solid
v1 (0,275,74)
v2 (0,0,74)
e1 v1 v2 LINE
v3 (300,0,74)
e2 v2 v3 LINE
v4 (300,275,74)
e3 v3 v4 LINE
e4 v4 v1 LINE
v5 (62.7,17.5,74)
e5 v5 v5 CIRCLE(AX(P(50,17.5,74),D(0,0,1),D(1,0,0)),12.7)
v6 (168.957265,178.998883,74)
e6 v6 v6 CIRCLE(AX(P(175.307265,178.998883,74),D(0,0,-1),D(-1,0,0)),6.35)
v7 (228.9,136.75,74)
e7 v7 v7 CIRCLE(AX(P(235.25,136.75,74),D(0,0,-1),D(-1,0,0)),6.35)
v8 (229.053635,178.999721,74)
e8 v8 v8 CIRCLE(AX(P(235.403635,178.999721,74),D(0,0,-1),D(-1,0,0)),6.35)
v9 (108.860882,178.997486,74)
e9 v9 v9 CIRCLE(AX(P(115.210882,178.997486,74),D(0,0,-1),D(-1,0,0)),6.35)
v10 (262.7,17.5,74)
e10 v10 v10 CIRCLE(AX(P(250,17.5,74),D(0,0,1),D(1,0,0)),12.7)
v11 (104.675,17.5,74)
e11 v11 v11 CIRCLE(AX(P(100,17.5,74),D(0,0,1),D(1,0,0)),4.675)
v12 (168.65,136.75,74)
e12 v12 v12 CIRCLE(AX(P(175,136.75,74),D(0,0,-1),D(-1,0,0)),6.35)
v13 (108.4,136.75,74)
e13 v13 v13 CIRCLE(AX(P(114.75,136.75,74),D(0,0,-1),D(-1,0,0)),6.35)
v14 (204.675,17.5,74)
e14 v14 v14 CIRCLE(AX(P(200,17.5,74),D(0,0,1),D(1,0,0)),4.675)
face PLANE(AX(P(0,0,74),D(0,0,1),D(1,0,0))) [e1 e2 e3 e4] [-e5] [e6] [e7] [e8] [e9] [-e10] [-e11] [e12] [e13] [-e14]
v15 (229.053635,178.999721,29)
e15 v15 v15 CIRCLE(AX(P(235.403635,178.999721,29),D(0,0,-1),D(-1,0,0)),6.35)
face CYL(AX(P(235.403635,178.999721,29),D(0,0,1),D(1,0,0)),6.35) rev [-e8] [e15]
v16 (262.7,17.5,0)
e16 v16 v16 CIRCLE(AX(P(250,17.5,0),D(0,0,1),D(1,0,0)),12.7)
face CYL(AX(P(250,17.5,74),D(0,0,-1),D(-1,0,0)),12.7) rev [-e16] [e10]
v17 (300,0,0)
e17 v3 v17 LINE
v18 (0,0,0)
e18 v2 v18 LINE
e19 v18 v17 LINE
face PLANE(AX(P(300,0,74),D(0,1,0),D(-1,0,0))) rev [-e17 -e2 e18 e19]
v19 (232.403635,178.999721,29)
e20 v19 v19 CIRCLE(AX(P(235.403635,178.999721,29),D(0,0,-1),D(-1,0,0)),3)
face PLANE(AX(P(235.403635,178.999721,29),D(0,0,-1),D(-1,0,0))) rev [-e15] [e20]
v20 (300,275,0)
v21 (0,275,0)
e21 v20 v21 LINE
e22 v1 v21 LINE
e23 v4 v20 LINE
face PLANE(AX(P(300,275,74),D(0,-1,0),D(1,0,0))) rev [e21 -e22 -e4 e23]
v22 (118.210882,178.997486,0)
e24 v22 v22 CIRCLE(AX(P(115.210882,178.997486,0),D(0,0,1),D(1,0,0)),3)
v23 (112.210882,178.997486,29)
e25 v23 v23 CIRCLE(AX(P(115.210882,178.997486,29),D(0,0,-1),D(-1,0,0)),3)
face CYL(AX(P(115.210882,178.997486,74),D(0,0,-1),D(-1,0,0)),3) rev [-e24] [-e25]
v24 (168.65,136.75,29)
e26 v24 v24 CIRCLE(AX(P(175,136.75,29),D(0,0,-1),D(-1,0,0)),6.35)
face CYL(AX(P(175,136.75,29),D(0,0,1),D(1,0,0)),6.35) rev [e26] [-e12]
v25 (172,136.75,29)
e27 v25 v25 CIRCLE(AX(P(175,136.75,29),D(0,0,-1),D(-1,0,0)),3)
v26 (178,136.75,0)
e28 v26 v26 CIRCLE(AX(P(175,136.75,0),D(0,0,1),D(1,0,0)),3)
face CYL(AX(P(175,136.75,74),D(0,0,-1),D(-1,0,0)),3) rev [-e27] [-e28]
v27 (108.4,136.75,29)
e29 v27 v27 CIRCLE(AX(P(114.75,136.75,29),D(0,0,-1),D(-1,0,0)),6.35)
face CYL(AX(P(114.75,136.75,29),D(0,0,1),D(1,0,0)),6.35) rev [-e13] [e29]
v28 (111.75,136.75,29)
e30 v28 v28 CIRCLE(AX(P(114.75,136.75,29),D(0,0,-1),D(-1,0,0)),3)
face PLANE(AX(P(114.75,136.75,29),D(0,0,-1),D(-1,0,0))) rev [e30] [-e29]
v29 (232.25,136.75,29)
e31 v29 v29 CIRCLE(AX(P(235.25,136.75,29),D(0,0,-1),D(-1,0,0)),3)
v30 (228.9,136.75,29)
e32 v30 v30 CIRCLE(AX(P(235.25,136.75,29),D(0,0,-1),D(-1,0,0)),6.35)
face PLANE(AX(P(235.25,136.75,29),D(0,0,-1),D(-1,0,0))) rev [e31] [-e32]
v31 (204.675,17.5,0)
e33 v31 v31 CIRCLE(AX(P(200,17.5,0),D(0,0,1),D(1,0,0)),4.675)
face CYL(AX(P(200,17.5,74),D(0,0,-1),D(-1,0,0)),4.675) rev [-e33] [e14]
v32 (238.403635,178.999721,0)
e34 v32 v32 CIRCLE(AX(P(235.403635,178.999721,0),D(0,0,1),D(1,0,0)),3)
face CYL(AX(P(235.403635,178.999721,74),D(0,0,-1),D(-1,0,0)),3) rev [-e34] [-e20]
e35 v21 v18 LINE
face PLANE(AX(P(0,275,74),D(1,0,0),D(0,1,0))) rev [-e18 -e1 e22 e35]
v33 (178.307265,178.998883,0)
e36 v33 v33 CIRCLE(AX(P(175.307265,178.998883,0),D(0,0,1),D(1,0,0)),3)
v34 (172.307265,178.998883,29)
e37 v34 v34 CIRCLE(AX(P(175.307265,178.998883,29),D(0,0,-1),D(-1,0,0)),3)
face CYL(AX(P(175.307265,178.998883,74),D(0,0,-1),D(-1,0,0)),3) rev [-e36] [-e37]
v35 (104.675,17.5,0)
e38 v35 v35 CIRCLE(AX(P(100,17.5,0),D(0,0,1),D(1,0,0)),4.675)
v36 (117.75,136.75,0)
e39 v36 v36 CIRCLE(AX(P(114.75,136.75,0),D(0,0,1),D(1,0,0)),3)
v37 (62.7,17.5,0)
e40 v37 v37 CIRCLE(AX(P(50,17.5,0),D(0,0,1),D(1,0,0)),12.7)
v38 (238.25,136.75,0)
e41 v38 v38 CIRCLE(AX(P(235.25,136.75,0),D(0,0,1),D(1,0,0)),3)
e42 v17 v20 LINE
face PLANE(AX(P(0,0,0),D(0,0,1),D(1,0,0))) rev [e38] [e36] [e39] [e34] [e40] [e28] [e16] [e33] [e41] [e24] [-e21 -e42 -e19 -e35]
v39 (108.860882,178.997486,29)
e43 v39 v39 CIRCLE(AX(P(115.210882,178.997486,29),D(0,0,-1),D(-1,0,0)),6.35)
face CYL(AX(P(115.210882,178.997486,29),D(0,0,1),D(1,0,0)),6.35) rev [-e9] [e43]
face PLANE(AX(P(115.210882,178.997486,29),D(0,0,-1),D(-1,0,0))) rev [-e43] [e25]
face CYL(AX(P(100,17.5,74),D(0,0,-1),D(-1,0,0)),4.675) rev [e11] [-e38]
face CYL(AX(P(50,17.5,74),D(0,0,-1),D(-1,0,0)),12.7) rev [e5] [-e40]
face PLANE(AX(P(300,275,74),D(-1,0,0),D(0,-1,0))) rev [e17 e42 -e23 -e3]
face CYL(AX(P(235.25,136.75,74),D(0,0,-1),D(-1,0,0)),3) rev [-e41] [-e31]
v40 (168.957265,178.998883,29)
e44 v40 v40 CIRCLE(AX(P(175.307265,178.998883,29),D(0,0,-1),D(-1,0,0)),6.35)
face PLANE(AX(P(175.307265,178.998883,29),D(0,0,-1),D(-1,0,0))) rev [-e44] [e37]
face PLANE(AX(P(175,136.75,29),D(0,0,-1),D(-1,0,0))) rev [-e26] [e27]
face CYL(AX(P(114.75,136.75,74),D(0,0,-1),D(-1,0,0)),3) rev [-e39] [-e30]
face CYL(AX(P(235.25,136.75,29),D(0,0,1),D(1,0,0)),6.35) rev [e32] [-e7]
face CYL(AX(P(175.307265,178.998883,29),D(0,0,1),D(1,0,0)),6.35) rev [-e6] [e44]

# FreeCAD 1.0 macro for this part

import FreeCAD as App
import Part
import Sketcher

V = App.Vector

doc = App.newDocument("Part")
params = doc.addObject("Spreadsheet::Sheet", "Params")
for row, (alias, value) in enumerate([
    ("sketch1_diameter", "6 mm"),
    ("sketch1_diameter2", "25.4 mm"),
    ("sketch1_diameter3", "9.35 mm"),
    ("sketch1_width", "300 mm"),
    ("sketch1_height", "275 mm"),
    ("pad1_length", "74 mm"),
    ("sketch2_diameter", "12.7 mm"),
    ("pocket1_length", "45 mm"),
], start=1):
    params.set(f"A{row}", alias)
    params.set(f"B{row}", "=" + value)
    params.setAlias(f"B{row}", alias)

body = doc.addObject("PartDesign::Body", "Body")

# Sketch on XY plane
sketch1 = doc.addObject("Sketcher::SketchObject", "Sketch")
body.addObject(sketch1)
sketch1.AttachmentSupport = (doc.XY_Plane, [""])
sketch1.MapMode = "FlatFace"
sketch1.addGeometry([
    Part.LineSegment(V(0, 275, 0), V(0, 0, 0)),  # 0
    Part.LineSegment(V(0, 0, 0), V(300, 0, 0)),  # 1
    Part.LineSegment(V(300, 0, 0), V(300, 275, 0)),  # 2
    Part.LineSegment(V(300, 275, 0), V(0, 275, 0)),  # 3
    Part.Circle(V(50, 17.5, 0), V(0, 0, 1), 12.7),  # 4
    Part.Circle(V(100, 17.5, 0), V(0, 0, 1), 4.7),  # 5
    Part.Circle(V(200, 17.5, 0), V(0, 0, 1), 4.7),  # 6
    Part.Circle(V(250, 17.5, 0), V(0, 0, 1), 12.7),  # 7
    Part.Circle(V(114.8, 136.8, 0), V(0, 0, 1), 3),  # 8
    Part.Circle(V(115.2, 179, 0), V(0, 0, 1), 3),  # 9
    Part.Circle(V(175, 136.8, 0), V(0, 0, 1), 3),  # 10
    Part.Circle(V(235.2, 136.8, 0), V(0, 0, 1), 3),  # 11
    Part.Circle(V(175.3, 179, 0), V(0, 0, 1), 3),  # 12
    Part.Circle(V(235.4, 179, 0), V(0, 0, 1), 3),  # 13
], False)
sketch1.addConstraint([
    Sketcher.Constraint("Coincident", 0, 2, 1, 1),
    Sketcher.Constraint("Coincident", 1, 2, 2, 1),
    Sketcher.Constraint("Coincident", 2, 2, 3, 1),
    Sketcher.Constraint("Coincident", 3, 2, 0, 1),
    Sketcher.Constraint("Vertical", 0),
    Sketcher.Constraint("Horizontal", 1),
    Sketcher.Constraint("Vertical", 2),
    Sketcher.Constraint("Horizontal", 3),
    Sketcher.Constraint("Coincident", 0, 2, -1, 1),
    Sketcher.Constraint("Equal", 5, 6),
    Sketcher.Constraint("Equal", 4, 7),
    Sketcher.Constraint("Equal", 8, 9),
    Sketcher.Constraint("Equal", 9, 10),
    Sketcher.Constraint("Equal", 10, 11),
    Sketcher.Constraint("Equal", 11, 12),
    Sketcher.Constraint("Equal", 12, 13),
    Sketcher.Constraint("Horizontal", 4, 3, 5, 3),
    Sketcher.Constraint("Horizontal", 5, 3, 6, 3),
    Sketcher.Constraint("Horizontal", 6, 3, 7, 3),
    Sketcher.Constraint("Horizontal", 8, 3, 10, 3),
    Sketcher.Constraint("Horizontal", 10, 3, 11, 3),
    Sketcher.Constraint("Diameter", 8, 6.0),
    Sketcher.Constraint("Diameter", 4, 25.4),
    Sketcher.Constraint("Diameter", 5, 9.35),
    Sketcher.Constraint("DistanceX", 1, 1, 1, 2, 300.0),
    Sketcher.Constraint("DistanceY", 0, 2, 0, 1, 275.0),
    Sketcher.Constraint("DistanceX", -1, 1, 4, 3, 50.0),
    Sketcher.Constraint("DistanceX", -1, 1, 5, 3, 100.0),
    Sketcher.Constraint("DistanceX", -1, 1, 6, 3, 200.0),
    Sketcher.Constraint("DistanceX", -1, 1, 7, 3, 250.0),
    Sketcher.Constraint("DistanceX", -1, 1, 10, 3, 175.0),
    Sketcher.Constraint("DistanceY", -1, 1, 4, 3, 17.5),
    Sketcher.Constraint("DistanceX", 8, 3, 11, 3, 120.5),
    Sketcher.Constraint("DistanceX", -1, 1, 8, 3, 114.75),
    Sketcher.Constraint("DistanceY", -1, 1, 8, 3, 136.75),
    Sketcher.Constraint("DistanceX", -1, 1, 9, 3, 115.210882),
    Sketcher.Constraint("DistanceY", -1, 1, 13, 3, 178.999721),
    Sketcher.Constraint("DistanceX", 12, 3, 13, 3, 60.096371),
    Sketcher.Constraint("DistanceY", -1, 1, 9, 3, 178.997486),
    Sketcher.Constraint("DistanceX", -1, 1, 12, 3, 175.307265),
    Sketcher.Constraint("DistanceY", -1, 1, 12, 3, 178.998883),
])
sketch1.setExpression("Constraints[21]", "Params.sketch1_diameter")
sketch1.setExpression("Constraints[22]", "Params.sketch1_diameter2")
sketch1.setExpression("Constraints[23]", "Params.sketch1_diameter3")
sketch1.setExpression("Constraints[24]", "Params.sketch1_width")
sketch1.setExpression("Constraints[25]", "Params.sketch1_height")
pad1 = doc.addObject("PartDesign::Pad", "Pad")
body.addObject(pad1)
pad1.Profile = sketch1
pad1.setExpression("Length", "Params.pad1_length")

# Sketch on XY plane
sketch2 = doc.addObject("Sketcher::SketchObject", "Sketch001")
body.addObject(sketch2)
sketch2.AttachmentSupport = (doc.XY_Plane, [""])
sketch2.MapMode = "FlatFace"
sketch2.AttachmentOffset = App.Placement(V(0, 0, 74), App.Rotation())
sketch2.addGeometry([
    Part.Circle(V(175, 137, 0), V(0, 0, 1), 6),  # 0
    Part.Circle(V(235, 137, 0), V(0, 0, 1), 6),  # 1
    Part.Circle(V(235, 179, 0), V(0, 0, 1), 6),  # 2
    Part.Circle(V(175, 179, 0), V(0, 0, 1), 6),  # 3
    Part.Circle(V(115, 179, 0), V(0, 0, 1), 6),  # 4
    Part.Circle(V(115, 137, 0), V(0, 0, 1), 6),  # 5
], False)
sketch2.addConstraint([
    Sketcher.Constraint("Equal", 0, 1),
    Sketcher.Constraint("Equal", 1, 2),
    Sketcher.Constraint("Equal", 2, 3),
    Sketcher.Constraint("Equal", 3, 4),
    Sketcher.Constraint("Equal", 4, 5),
    Sketcher.Constraint("Horizontal", 0, 3, 1, 3),
    Sketcher.Constraint("Horizontal", 1, 3, 5, 3),
    Sketcher.Constraint("Diameter", 0, 12.7),
    Sketcher.Constraint("DistanceX", -1, 1, 0, 3, 175.0),
    Sketcher.Constraint("DistanceX", 5, 3, 1, 3, 120.5),
    Sketcher.Constraint("DistanceY", -1, 1, 0, 3, 136.75),
    Sketcher.Constraint("DistanceX", -1, 1, 1, 3, 235.25),
    Sketcher.Constraint("DistanceY", -1, 1, 2, 3, 178.999721),
    Sketcher.Constraint("DistanceX", -1, 1, 4, 3, 115.210882),
    Sketcher.Constraint("DistanceX", 3, 3, 2, 3, 60.096371),
    Sketcher.Constraint("DistanceX", -1, 1, 2, 3, 235.403635),
    Sketcher.Constraint("DistanceY", -1, 1, 3, 3, 178.998883),
    Sketcher.Constraint("DistanceY", -1, 1, 4, 3, 178.997486),
])
sketch2.setExpression("Constraints[7]", "Params.sketch2_diameter")
pocket1 = doc.addObject("PartDesign::Pocket", "Pocket")
body.addObject(pocket1)
pocket1.Profile = sketch2
pocket1.setExpression("Length", "Params.pocket1_length")

doc.recompute()
